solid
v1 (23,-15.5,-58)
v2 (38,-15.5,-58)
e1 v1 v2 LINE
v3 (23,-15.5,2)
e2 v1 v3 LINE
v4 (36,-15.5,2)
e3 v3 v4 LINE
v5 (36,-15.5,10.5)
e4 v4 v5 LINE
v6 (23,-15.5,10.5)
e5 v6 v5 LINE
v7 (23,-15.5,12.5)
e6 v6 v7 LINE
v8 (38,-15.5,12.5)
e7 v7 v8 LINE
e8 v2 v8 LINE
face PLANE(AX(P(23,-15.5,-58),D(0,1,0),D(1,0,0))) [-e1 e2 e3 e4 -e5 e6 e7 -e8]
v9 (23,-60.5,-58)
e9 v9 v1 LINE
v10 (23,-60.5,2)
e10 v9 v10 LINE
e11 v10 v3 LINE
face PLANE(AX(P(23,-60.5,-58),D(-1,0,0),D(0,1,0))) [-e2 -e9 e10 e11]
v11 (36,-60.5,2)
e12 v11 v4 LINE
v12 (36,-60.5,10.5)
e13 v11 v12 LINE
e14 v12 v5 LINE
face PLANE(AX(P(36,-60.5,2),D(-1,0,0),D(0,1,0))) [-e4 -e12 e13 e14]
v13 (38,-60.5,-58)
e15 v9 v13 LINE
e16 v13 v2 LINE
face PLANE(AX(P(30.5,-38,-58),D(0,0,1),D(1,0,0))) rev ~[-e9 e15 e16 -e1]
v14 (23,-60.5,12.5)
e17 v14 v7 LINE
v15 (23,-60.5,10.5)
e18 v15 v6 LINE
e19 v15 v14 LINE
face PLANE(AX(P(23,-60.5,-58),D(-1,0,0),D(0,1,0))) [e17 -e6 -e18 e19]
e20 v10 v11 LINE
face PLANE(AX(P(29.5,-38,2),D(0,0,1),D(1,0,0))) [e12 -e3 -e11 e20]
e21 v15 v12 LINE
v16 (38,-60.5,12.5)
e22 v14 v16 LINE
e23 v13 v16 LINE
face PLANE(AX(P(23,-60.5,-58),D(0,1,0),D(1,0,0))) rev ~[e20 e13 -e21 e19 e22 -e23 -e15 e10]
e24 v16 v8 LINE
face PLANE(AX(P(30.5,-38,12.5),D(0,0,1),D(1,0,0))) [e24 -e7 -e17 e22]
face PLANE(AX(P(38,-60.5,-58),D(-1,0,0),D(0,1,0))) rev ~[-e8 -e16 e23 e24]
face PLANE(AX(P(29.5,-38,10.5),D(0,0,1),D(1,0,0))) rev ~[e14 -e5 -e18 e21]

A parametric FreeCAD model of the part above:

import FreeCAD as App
import Part
import Sketcher

V = App.Vector


def add_polygon(sketch, points):
    """Adds a closed chain of lines whose ends are joined by coincident constraints."""
    first, n = sketch.GeometryCount, len(points)
    for a, b in zip(points, points[1:] + points[:1]):
        sketch.addGeometry(Part.LineSegment(App.Vector(*a, 0), App.Vector(*b, 0)), False)
    for i in range(n):
        sketch.addConstraint(Sketcher.Constraint("Coincident", first + i, 2, first + (i + 1) % n, 1))

doc = App.newDocument("Part")
params = doc.addObject("Spreadsheet::Sheet", "Params")
for row, (alias, value) in enumerate([
    ("sketch1_width", "13 mm"),
    ("sketch1_height", "45 mm"),
    ("pad1_length", "8.5 mm"),
    ("sketch2_width", "15 mm"),
    ("sketch2_height", "45 mm"),
    ("pad2_length", "70.5 mm"),
], start=1):
    params.set(f"A{row}", alias)
    params.set(f"B{row}", "=" + value)
    params.setAlias(f"B{row}", alias)

body = doc.addObject("PartDesign::Body", "Body")

# Sketch on XY plane
sketch1 = body.newObject("Sketcher::SketchObject", "Sketch")
sketch1.AttachmentSupport = (doc.getObject("XY_Plane"), [""])
sketch1.MapMode = "FlatFace"
add_polygon(sketch1, [(-35, 6), (-35, -39), (-22, -39), (-22, 6)])  # lines 0-3
sketch1.addConstraint([
    Sketcher.Constraint("Vertical", 0),
    Sketcher.Constraint("Horizontal", 1),
    Sketcher.Constraint("Vertical", 2),
    Sketcher.Constraint("Horizontal", 3),
    Sketcher.Constraint("DistanceX", 1, 1, 1, 2, 13.0),
    Sketcher.Constraint("DistanceY", 0, 2, 0, 1, 45.0),
    Sketcher.Constraint("DistanceX", 0, 2, -1, 1, 35.0),
    Sketcher.Constraint("DistanceY", 0, 2, -1, 1, 39.0),
])
sketch1.setExpression("Constraints[8]", "Params.sketch1_width")
sketch1.setExpression("Constraints[9]", "Params.sketch1_height")
pad1 = body.newObject("PartDesign::Pad", "Pad")
pad1.Profile = sketch1
pad1.setExpression("Length", "Params.pad1_length")
body2 = doc.addObject("PartDesign::Body", "Body001")
doc.recompute()

body.Placement = App.Placement(V(58, -21.5, 2), App.Rotation(V(0, 0, 1), 0))
boolean = body2.newObject("PartDesign::Boolean", "Boolean")
boolean.Type = "Fuse"
boolean.addObjects([body])
body3 = doc.addObject("PartDesign::Body", "Body002")

# Sketch on XY plane
sketch2 = body3.newObject("Sketcher::SketchObject", "Sketch001")
sketch2.AttachmentSupport = (doc.getObject("XY_Plane002"), [""])
sketch2.MapMode = "FlatFace"
add_polygon(sketch2, [(-35, 6), (-35, -39), (-20, -39), (-20, 6)])  # lines 0-3
sketch2.addConstraint([
    Sketcher.Constraint("Vertical", 0),
    Sketcher.Constraint("Horizontal", 1),
    Sketcher.Constraint("Vertical", 2),
    Sketcher.Constraint("Horizontal", 3),
    Sketcher.Constraint("DistanceX", 1, 1, 1, 2, 15.0),
    Sketcher.Constraint("DistanceY", 0, 2, 0, 1, 45.0),
    Sketcher.Constraint("DistanceX", 0, 2, -1, 1, 35.0),
    Sketcher.Constraint("DistanceY", 0, 2, -1, 1, 39.0),
])
sketch2.setExpression("Constraints[8]", "Params.sketch2_width")
sketch2.setExpression("Constraints[9]", "Params.sketch2_height")
pad2 = body3.newObject("PartDesign::Pad", "Pad001")
pad2.Profile = sketch2
pad2.setExpression("Length", "Params.pad2_length")
body4 = doc.addObject("PartDesign::Body", "Body003")
doc.recompute()

body3.Placement = App.Placement(V(58, -21.5, -58), App.Rotation(V(0, 0, 1), 0))
boolean2 = body4.newObject("PartDesign::Boolean", "Boolean001")
boolean2.Type = "Fuse"
boolean2.addObjects([body3])
doc.recompute()

boolean3 = body4.newObject("PartDesign::Boolean", "Boolean002")
boolean3.Type = "Cut"
boolean3.addObjects([body2])

doc.recompute()
